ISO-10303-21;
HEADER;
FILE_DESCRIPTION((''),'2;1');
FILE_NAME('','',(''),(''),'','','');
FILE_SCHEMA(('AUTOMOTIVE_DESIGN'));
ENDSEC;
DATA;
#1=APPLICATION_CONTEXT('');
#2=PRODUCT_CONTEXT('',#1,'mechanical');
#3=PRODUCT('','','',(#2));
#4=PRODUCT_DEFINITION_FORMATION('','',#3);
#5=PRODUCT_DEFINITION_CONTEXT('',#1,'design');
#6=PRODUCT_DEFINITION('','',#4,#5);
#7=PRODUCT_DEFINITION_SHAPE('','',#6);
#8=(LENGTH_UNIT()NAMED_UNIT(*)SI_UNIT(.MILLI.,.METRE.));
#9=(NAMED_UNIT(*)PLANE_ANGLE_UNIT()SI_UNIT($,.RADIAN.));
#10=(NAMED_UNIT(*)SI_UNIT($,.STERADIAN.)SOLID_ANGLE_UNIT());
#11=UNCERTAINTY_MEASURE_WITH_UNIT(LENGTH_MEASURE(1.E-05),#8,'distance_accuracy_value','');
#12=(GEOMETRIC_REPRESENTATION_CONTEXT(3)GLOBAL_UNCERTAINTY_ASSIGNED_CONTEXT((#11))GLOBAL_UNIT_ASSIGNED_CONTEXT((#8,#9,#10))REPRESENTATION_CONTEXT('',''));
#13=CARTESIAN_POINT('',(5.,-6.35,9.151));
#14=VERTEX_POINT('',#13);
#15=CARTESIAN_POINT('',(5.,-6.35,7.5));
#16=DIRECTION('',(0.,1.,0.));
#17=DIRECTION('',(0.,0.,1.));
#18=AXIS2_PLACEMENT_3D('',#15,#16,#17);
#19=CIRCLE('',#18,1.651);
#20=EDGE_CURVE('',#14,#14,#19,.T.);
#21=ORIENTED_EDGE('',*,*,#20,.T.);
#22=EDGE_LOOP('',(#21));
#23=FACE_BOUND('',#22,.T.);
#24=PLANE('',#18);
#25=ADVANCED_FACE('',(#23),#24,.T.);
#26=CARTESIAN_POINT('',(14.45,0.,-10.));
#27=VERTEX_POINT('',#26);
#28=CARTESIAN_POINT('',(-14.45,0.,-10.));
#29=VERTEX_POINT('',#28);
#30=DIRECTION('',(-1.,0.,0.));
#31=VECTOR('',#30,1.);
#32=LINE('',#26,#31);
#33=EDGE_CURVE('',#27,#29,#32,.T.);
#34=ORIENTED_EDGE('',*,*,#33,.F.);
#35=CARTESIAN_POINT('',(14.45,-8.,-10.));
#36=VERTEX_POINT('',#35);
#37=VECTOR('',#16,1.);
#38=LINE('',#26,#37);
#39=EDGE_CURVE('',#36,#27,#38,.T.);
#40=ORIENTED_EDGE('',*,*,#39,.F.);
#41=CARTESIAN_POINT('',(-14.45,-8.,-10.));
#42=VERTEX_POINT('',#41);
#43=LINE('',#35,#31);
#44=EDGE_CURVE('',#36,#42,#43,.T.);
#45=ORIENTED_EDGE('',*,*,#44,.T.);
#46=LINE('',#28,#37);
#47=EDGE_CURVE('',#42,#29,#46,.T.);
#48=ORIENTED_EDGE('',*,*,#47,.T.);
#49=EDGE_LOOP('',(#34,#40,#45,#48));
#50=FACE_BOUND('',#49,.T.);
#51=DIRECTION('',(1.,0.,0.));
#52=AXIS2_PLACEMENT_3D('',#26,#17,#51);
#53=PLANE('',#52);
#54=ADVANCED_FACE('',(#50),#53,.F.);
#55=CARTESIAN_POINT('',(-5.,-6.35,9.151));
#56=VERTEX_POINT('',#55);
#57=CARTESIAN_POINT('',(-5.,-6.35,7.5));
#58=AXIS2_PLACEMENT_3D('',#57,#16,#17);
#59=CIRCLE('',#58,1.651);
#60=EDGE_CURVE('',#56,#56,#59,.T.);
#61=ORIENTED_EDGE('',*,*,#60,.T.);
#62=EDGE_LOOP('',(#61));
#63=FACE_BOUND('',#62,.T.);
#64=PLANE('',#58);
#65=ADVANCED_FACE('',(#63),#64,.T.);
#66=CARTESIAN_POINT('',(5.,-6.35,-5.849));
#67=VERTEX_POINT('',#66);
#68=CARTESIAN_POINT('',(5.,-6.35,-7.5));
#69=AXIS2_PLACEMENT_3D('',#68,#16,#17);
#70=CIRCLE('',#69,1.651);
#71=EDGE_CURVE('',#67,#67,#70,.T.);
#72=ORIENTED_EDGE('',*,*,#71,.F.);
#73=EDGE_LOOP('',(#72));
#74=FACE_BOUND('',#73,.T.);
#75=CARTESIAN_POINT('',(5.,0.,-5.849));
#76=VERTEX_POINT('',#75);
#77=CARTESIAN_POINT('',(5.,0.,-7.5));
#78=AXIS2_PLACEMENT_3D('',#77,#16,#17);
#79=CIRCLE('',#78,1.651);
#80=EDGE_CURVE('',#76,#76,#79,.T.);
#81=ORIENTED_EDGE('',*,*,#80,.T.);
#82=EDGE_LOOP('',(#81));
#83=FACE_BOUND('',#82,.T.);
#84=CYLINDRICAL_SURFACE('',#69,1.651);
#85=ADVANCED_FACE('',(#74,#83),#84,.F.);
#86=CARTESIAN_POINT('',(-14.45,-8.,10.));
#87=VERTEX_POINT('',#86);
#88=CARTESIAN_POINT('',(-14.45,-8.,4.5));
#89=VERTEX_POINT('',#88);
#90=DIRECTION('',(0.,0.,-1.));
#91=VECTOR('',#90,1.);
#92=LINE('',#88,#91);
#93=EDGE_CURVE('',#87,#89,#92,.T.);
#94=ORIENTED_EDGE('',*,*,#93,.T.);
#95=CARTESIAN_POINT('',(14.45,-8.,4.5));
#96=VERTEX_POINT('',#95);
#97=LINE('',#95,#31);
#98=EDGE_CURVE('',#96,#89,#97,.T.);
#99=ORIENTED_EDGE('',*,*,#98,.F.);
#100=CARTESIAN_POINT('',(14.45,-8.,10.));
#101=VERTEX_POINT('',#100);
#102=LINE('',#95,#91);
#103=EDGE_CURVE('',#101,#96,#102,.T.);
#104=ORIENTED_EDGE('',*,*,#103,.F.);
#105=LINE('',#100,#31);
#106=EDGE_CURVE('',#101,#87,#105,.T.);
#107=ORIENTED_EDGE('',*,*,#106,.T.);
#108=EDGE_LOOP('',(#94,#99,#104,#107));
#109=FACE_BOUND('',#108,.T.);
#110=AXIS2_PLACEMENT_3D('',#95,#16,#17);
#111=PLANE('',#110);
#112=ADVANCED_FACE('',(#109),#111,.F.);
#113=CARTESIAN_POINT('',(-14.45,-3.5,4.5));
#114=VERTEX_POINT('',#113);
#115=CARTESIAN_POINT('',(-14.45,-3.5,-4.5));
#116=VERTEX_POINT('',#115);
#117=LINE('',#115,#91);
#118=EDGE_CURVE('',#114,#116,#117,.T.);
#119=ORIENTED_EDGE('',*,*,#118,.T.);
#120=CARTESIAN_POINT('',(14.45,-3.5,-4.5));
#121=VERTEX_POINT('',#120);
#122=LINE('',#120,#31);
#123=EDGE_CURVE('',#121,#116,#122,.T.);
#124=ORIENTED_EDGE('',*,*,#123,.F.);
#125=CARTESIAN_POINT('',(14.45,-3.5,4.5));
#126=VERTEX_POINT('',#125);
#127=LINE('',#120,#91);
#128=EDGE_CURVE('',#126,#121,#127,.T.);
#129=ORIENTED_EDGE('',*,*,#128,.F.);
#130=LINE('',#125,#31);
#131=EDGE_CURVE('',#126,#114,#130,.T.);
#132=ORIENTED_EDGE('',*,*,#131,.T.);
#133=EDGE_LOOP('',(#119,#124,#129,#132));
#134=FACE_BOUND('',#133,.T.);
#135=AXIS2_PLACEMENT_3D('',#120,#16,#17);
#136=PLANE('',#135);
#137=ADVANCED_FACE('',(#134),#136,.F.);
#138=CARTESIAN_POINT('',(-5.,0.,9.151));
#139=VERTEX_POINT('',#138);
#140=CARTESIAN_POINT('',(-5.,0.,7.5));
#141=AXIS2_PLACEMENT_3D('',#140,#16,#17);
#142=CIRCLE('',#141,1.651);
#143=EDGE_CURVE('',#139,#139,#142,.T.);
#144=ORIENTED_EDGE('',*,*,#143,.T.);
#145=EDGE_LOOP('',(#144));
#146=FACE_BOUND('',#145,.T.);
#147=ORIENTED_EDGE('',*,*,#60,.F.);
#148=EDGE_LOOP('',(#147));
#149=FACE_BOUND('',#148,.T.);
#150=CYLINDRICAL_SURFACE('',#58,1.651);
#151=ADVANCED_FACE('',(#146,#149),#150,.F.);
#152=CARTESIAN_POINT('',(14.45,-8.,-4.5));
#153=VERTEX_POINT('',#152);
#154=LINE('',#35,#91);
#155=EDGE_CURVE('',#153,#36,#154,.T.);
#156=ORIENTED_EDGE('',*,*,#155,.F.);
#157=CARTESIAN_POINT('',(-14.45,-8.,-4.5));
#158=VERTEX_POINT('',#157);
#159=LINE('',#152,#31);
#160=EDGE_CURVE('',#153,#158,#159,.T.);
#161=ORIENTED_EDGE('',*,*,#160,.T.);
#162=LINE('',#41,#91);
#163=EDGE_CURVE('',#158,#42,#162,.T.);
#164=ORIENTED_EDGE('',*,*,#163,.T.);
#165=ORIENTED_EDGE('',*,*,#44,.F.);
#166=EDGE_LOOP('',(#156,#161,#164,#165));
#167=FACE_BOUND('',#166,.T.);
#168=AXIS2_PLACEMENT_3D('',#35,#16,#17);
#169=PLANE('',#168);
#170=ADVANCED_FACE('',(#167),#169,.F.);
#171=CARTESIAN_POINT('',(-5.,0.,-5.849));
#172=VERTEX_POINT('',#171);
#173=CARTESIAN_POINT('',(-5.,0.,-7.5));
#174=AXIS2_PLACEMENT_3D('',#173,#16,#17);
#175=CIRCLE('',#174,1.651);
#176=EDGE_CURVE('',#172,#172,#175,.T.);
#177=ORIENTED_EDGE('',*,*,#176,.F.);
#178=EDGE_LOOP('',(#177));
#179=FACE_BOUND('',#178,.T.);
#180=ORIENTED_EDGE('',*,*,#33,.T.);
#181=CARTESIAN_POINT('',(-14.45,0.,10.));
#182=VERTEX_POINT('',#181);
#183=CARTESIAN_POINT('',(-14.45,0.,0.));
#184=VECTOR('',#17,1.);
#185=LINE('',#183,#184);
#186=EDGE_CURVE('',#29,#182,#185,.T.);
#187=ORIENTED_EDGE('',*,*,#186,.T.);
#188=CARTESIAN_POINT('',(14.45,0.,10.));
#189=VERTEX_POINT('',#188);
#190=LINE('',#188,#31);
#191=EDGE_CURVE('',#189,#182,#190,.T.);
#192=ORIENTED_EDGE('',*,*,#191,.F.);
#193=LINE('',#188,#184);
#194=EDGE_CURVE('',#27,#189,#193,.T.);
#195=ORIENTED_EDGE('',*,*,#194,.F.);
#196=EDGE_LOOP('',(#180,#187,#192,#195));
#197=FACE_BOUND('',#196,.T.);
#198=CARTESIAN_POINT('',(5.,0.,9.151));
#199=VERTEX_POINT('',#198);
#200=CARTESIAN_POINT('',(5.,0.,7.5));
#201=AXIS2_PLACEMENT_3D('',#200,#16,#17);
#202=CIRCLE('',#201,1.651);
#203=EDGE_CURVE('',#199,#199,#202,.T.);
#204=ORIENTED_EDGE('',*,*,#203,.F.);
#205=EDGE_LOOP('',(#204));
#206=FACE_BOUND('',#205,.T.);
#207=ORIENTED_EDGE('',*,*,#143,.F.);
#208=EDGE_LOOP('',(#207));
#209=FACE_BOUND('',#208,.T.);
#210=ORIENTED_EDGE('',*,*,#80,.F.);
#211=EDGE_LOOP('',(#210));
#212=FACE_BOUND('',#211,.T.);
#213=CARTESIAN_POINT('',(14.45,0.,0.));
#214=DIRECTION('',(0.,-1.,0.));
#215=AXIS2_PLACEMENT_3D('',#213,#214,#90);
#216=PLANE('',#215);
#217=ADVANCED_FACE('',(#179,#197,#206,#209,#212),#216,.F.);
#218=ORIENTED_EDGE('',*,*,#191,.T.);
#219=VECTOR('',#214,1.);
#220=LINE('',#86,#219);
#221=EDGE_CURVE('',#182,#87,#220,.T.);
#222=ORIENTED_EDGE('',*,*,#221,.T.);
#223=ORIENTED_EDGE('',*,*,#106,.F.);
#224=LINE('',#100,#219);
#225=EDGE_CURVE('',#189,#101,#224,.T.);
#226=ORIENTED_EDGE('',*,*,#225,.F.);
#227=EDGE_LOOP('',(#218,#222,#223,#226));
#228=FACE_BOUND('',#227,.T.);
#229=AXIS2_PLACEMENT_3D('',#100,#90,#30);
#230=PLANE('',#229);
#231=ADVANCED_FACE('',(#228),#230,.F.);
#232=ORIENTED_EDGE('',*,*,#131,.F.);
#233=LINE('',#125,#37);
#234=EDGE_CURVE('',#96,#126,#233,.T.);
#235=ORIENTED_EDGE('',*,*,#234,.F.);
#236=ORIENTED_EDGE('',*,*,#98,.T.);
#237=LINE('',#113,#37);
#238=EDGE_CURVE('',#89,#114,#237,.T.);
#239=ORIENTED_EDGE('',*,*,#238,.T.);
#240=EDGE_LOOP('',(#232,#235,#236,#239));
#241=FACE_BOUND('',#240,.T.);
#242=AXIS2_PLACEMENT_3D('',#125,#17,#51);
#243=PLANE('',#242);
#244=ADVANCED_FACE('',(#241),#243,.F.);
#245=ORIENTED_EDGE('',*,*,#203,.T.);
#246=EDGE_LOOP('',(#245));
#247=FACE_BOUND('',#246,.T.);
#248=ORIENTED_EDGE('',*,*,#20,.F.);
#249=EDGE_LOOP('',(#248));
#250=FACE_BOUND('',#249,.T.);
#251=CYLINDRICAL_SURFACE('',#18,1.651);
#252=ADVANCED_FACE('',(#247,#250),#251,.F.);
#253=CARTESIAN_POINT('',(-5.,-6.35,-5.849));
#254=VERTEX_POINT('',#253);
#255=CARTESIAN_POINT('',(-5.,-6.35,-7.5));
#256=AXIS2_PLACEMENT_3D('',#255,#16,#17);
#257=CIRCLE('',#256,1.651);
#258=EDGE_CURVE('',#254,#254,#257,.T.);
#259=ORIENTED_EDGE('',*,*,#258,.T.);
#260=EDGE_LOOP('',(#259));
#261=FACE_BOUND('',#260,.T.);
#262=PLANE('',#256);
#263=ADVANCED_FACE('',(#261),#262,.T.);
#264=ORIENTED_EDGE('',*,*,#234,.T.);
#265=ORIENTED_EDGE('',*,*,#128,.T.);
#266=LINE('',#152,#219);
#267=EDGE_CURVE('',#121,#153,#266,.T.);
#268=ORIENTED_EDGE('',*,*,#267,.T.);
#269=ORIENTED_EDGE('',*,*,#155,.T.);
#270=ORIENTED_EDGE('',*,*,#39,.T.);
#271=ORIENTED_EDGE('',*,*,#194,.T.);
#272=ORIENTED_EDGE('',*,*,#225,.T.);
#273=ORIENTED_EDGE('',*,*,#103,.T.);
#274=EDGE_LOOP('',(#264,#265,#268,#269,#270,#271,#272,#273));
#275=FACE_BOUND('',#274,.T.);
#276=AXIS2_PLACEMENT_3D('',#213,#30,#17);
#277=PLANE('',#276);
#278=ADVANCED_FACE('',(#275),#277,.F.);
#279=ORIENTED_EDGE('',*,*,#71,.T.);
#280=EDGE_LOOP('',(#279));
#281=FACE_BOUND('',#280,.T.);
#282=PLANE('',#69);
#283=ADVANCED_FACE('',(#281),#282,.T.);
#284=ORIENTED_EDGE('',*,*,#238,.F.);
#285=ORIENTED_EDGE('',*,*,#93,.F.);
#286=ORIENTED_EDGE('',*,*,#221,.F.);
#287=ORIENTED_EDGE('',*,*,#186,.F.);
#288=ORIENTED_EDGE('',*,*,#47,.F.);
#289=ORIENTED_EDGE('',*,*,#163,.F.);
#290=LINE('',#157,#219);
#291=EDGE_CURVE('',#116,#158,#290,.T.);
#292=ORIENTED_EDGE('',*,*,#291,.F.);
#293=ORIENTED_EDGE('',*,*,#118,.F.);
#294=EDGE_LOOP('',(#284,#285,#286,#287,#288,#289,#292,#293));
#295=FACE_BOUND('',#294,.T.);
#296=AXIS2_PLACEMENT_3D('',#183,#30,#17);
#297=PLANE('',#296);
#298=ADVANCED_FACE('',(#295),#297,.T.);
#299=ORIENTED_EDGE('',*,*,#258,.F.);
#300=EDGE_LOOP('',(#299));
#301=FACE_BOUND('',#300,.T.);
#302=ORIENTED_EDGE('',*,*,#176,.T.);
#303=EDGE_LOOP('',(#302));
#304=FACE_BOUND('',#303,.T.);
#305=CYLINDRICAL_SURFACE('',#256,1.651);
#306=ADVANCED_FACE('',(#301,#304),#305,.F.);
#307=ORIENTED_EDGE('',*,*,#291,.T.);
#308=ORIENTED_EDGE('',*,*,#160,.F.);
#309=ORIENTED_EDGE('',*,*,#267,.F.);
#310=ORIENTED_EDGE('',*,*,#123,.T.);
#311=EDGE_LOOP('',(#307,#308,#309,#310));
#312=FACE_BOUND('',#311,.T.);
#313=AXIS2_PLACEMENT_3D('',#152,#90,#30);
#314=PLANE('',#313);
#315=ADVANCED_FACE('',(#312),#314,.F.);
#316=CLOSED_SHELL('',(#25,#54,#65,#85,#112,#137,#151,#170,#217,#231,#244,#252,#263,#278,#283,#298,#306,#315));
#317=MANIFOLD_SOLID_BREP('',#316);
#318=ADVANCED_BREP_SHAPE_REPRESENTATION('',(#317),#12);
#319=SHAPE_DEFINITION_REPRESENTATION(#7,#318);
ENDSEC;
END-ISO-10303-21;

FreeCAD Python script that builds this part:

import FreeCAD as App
import Part
import Sketcher
Q = App.Units.Quantity


def add_polygon(sketch, points):
    """Adds a closed chain of lines whose ends are joined by coincident constraints."""
    first, n = sketch.GeometryCount, len(points)
    for a, b in zip(points, points[1:] + points[:1]):
        sketch.addGeometry(Part.LineSegment(App.Vector(*a, 0), App.Vector(*b, 0)), False)
    for i in range(n):
        sketch.addConstraint(Sketcher.Constraint("Coincident", first + i, 2, first + (i + 1) % n, 1))

doc = App.newDocument("Part")
body = doc.addObject("PartDesign::Body", "Body")

# Sketch on YZ plane
sketch1 = body.newObject("Sketcher::SketchObject", "Sketch")
sketch1.AttachmentSupport = (doc.getObject("YZ_Plane"), [""])
sketch1.MapMode = "FlatFace"
add_polygon(sketch1, [(0, -10), (0, 10), (-8, 10), (-8, 4.5), (-3.5, 4.5), (-3.5, -4.5), (-8, -4.5), (-8, -10)])  # lines 0-7
sketch1.addConstraint(Sketcher.Constraint("Vertical", 0))
sketch1.addConstraint(Sketcher.Constraint("Horizontal", 1))
sketch1.addConstraint(Sketcher.Constraint("Vertical", 2))
sketch1.addConstraint(Sketcher.Constraint("Horizontal", 3))
sketch1.addConstraint(Sketcher.Constraint("Vertical", 4))
sketch1.addConstraint(Sketcher.Constraint("Horizontal", 5))
sketch1.addConstraint(Sketcher.Constraint("Vertical", 6))
sketch1.addConstraint(Sketcher.Constraint("Horizontal", 7))
sketch1.addConstraint(Sketcher.Constraint("Symmetric", 0, 2, 7, 2, -1, 1))
sketch1.addConstraint(Sketcher.Constraint("Symmetric", 2, 2, 5, 2, -1))
sketch1.addConstraint(Sketcher.Constraint("DistanceX", 1, 2, 1, 1, Q("8 mm")))
sketch1.addConstraint(Sketcher.Constraint("DistanceY", 0, 1, 0, 2, Q("20 mm")))
sketch1.addConstraint(Sketcher.Constraint("DistanceY", 4, 2, 4, 1, Q("9 mm")))
sketch1.addConstraint(Sketcher.Constraint("DistanceX", 3, 1, 3, 2, Q("4.5 mm")))
pad1 = body.newObject("PartDesign::Pad", "Pad")
pad1.Profile = sketch1
pad1.Length = 28.9
pad1.Midplane = True

# Sketch on XZ plane
sketch2 = body.newObject("Sketcher::SketchObject", "Sketch001")
sketch2.AttachmentSupport = (doc.getObject("XZ_Plane"), [""])
sketch2.MapMode = "FlatFace"
sketch2.addGeometry(Part.Circle(App.Vector(5, -7.5, 0), App.Vector(0, 0, 1), 1.651), False)
sketch2.addGeometry(Part.Circle(App.Vector(5, 7.5, 0), App.Vector(0, 0, 1), 1.651), False)
sketch2.addGeometry(Part.Circle(App.Vector(-5, 7.5, 0), App.Vector(0, 0, 1), 1.651), False)
sketch2.addGeometry(Part.Circle(App.Vector(-5, -7.5, 0), App.Vector(0, 0, 1), 1.651), False)
sketch2.addConstraint(Sketcher.Constraint("Equal", 0, 1))
sketch2.addConstraint(Sketcher.Constraint("Equal", 1, 2))
sketch2.addConstraint(Sketcher.Constraint("Equal", 2, 3))
sketch2.addConstraint(Sketcher.Constraint("Symmetric", 0, 3, 2, 3, -1, 1))
sketch2.addConstraint(Sketcher.Constraint("Symmetric", 1, 3, 3, 3, -1, 1))
sketch2.addConstraint(Sketcher.Constraint("Symmetric", 1, 3, 2, 3, -2))
sketch2.addConstraint(Sketcher.Constraint("Diameter", 0, Q("3.302 mm")))
sketch2.addConstraint(Sketcher.Constraint("DistanceX", -1, 1, 0, 3, Q("5 mm")))
sketch2.addConstraint(Sketcher.Constraint("DistanceY", 0, 3, 1, 3, Q("15 mm")))
pocket1 = body.newObject("PartDesign::Pocket", "Pocket")
pocket1.Profile = sketch2
pocket1.Length = 6.35
pocket1.Reversed = True

doc.recompute()
